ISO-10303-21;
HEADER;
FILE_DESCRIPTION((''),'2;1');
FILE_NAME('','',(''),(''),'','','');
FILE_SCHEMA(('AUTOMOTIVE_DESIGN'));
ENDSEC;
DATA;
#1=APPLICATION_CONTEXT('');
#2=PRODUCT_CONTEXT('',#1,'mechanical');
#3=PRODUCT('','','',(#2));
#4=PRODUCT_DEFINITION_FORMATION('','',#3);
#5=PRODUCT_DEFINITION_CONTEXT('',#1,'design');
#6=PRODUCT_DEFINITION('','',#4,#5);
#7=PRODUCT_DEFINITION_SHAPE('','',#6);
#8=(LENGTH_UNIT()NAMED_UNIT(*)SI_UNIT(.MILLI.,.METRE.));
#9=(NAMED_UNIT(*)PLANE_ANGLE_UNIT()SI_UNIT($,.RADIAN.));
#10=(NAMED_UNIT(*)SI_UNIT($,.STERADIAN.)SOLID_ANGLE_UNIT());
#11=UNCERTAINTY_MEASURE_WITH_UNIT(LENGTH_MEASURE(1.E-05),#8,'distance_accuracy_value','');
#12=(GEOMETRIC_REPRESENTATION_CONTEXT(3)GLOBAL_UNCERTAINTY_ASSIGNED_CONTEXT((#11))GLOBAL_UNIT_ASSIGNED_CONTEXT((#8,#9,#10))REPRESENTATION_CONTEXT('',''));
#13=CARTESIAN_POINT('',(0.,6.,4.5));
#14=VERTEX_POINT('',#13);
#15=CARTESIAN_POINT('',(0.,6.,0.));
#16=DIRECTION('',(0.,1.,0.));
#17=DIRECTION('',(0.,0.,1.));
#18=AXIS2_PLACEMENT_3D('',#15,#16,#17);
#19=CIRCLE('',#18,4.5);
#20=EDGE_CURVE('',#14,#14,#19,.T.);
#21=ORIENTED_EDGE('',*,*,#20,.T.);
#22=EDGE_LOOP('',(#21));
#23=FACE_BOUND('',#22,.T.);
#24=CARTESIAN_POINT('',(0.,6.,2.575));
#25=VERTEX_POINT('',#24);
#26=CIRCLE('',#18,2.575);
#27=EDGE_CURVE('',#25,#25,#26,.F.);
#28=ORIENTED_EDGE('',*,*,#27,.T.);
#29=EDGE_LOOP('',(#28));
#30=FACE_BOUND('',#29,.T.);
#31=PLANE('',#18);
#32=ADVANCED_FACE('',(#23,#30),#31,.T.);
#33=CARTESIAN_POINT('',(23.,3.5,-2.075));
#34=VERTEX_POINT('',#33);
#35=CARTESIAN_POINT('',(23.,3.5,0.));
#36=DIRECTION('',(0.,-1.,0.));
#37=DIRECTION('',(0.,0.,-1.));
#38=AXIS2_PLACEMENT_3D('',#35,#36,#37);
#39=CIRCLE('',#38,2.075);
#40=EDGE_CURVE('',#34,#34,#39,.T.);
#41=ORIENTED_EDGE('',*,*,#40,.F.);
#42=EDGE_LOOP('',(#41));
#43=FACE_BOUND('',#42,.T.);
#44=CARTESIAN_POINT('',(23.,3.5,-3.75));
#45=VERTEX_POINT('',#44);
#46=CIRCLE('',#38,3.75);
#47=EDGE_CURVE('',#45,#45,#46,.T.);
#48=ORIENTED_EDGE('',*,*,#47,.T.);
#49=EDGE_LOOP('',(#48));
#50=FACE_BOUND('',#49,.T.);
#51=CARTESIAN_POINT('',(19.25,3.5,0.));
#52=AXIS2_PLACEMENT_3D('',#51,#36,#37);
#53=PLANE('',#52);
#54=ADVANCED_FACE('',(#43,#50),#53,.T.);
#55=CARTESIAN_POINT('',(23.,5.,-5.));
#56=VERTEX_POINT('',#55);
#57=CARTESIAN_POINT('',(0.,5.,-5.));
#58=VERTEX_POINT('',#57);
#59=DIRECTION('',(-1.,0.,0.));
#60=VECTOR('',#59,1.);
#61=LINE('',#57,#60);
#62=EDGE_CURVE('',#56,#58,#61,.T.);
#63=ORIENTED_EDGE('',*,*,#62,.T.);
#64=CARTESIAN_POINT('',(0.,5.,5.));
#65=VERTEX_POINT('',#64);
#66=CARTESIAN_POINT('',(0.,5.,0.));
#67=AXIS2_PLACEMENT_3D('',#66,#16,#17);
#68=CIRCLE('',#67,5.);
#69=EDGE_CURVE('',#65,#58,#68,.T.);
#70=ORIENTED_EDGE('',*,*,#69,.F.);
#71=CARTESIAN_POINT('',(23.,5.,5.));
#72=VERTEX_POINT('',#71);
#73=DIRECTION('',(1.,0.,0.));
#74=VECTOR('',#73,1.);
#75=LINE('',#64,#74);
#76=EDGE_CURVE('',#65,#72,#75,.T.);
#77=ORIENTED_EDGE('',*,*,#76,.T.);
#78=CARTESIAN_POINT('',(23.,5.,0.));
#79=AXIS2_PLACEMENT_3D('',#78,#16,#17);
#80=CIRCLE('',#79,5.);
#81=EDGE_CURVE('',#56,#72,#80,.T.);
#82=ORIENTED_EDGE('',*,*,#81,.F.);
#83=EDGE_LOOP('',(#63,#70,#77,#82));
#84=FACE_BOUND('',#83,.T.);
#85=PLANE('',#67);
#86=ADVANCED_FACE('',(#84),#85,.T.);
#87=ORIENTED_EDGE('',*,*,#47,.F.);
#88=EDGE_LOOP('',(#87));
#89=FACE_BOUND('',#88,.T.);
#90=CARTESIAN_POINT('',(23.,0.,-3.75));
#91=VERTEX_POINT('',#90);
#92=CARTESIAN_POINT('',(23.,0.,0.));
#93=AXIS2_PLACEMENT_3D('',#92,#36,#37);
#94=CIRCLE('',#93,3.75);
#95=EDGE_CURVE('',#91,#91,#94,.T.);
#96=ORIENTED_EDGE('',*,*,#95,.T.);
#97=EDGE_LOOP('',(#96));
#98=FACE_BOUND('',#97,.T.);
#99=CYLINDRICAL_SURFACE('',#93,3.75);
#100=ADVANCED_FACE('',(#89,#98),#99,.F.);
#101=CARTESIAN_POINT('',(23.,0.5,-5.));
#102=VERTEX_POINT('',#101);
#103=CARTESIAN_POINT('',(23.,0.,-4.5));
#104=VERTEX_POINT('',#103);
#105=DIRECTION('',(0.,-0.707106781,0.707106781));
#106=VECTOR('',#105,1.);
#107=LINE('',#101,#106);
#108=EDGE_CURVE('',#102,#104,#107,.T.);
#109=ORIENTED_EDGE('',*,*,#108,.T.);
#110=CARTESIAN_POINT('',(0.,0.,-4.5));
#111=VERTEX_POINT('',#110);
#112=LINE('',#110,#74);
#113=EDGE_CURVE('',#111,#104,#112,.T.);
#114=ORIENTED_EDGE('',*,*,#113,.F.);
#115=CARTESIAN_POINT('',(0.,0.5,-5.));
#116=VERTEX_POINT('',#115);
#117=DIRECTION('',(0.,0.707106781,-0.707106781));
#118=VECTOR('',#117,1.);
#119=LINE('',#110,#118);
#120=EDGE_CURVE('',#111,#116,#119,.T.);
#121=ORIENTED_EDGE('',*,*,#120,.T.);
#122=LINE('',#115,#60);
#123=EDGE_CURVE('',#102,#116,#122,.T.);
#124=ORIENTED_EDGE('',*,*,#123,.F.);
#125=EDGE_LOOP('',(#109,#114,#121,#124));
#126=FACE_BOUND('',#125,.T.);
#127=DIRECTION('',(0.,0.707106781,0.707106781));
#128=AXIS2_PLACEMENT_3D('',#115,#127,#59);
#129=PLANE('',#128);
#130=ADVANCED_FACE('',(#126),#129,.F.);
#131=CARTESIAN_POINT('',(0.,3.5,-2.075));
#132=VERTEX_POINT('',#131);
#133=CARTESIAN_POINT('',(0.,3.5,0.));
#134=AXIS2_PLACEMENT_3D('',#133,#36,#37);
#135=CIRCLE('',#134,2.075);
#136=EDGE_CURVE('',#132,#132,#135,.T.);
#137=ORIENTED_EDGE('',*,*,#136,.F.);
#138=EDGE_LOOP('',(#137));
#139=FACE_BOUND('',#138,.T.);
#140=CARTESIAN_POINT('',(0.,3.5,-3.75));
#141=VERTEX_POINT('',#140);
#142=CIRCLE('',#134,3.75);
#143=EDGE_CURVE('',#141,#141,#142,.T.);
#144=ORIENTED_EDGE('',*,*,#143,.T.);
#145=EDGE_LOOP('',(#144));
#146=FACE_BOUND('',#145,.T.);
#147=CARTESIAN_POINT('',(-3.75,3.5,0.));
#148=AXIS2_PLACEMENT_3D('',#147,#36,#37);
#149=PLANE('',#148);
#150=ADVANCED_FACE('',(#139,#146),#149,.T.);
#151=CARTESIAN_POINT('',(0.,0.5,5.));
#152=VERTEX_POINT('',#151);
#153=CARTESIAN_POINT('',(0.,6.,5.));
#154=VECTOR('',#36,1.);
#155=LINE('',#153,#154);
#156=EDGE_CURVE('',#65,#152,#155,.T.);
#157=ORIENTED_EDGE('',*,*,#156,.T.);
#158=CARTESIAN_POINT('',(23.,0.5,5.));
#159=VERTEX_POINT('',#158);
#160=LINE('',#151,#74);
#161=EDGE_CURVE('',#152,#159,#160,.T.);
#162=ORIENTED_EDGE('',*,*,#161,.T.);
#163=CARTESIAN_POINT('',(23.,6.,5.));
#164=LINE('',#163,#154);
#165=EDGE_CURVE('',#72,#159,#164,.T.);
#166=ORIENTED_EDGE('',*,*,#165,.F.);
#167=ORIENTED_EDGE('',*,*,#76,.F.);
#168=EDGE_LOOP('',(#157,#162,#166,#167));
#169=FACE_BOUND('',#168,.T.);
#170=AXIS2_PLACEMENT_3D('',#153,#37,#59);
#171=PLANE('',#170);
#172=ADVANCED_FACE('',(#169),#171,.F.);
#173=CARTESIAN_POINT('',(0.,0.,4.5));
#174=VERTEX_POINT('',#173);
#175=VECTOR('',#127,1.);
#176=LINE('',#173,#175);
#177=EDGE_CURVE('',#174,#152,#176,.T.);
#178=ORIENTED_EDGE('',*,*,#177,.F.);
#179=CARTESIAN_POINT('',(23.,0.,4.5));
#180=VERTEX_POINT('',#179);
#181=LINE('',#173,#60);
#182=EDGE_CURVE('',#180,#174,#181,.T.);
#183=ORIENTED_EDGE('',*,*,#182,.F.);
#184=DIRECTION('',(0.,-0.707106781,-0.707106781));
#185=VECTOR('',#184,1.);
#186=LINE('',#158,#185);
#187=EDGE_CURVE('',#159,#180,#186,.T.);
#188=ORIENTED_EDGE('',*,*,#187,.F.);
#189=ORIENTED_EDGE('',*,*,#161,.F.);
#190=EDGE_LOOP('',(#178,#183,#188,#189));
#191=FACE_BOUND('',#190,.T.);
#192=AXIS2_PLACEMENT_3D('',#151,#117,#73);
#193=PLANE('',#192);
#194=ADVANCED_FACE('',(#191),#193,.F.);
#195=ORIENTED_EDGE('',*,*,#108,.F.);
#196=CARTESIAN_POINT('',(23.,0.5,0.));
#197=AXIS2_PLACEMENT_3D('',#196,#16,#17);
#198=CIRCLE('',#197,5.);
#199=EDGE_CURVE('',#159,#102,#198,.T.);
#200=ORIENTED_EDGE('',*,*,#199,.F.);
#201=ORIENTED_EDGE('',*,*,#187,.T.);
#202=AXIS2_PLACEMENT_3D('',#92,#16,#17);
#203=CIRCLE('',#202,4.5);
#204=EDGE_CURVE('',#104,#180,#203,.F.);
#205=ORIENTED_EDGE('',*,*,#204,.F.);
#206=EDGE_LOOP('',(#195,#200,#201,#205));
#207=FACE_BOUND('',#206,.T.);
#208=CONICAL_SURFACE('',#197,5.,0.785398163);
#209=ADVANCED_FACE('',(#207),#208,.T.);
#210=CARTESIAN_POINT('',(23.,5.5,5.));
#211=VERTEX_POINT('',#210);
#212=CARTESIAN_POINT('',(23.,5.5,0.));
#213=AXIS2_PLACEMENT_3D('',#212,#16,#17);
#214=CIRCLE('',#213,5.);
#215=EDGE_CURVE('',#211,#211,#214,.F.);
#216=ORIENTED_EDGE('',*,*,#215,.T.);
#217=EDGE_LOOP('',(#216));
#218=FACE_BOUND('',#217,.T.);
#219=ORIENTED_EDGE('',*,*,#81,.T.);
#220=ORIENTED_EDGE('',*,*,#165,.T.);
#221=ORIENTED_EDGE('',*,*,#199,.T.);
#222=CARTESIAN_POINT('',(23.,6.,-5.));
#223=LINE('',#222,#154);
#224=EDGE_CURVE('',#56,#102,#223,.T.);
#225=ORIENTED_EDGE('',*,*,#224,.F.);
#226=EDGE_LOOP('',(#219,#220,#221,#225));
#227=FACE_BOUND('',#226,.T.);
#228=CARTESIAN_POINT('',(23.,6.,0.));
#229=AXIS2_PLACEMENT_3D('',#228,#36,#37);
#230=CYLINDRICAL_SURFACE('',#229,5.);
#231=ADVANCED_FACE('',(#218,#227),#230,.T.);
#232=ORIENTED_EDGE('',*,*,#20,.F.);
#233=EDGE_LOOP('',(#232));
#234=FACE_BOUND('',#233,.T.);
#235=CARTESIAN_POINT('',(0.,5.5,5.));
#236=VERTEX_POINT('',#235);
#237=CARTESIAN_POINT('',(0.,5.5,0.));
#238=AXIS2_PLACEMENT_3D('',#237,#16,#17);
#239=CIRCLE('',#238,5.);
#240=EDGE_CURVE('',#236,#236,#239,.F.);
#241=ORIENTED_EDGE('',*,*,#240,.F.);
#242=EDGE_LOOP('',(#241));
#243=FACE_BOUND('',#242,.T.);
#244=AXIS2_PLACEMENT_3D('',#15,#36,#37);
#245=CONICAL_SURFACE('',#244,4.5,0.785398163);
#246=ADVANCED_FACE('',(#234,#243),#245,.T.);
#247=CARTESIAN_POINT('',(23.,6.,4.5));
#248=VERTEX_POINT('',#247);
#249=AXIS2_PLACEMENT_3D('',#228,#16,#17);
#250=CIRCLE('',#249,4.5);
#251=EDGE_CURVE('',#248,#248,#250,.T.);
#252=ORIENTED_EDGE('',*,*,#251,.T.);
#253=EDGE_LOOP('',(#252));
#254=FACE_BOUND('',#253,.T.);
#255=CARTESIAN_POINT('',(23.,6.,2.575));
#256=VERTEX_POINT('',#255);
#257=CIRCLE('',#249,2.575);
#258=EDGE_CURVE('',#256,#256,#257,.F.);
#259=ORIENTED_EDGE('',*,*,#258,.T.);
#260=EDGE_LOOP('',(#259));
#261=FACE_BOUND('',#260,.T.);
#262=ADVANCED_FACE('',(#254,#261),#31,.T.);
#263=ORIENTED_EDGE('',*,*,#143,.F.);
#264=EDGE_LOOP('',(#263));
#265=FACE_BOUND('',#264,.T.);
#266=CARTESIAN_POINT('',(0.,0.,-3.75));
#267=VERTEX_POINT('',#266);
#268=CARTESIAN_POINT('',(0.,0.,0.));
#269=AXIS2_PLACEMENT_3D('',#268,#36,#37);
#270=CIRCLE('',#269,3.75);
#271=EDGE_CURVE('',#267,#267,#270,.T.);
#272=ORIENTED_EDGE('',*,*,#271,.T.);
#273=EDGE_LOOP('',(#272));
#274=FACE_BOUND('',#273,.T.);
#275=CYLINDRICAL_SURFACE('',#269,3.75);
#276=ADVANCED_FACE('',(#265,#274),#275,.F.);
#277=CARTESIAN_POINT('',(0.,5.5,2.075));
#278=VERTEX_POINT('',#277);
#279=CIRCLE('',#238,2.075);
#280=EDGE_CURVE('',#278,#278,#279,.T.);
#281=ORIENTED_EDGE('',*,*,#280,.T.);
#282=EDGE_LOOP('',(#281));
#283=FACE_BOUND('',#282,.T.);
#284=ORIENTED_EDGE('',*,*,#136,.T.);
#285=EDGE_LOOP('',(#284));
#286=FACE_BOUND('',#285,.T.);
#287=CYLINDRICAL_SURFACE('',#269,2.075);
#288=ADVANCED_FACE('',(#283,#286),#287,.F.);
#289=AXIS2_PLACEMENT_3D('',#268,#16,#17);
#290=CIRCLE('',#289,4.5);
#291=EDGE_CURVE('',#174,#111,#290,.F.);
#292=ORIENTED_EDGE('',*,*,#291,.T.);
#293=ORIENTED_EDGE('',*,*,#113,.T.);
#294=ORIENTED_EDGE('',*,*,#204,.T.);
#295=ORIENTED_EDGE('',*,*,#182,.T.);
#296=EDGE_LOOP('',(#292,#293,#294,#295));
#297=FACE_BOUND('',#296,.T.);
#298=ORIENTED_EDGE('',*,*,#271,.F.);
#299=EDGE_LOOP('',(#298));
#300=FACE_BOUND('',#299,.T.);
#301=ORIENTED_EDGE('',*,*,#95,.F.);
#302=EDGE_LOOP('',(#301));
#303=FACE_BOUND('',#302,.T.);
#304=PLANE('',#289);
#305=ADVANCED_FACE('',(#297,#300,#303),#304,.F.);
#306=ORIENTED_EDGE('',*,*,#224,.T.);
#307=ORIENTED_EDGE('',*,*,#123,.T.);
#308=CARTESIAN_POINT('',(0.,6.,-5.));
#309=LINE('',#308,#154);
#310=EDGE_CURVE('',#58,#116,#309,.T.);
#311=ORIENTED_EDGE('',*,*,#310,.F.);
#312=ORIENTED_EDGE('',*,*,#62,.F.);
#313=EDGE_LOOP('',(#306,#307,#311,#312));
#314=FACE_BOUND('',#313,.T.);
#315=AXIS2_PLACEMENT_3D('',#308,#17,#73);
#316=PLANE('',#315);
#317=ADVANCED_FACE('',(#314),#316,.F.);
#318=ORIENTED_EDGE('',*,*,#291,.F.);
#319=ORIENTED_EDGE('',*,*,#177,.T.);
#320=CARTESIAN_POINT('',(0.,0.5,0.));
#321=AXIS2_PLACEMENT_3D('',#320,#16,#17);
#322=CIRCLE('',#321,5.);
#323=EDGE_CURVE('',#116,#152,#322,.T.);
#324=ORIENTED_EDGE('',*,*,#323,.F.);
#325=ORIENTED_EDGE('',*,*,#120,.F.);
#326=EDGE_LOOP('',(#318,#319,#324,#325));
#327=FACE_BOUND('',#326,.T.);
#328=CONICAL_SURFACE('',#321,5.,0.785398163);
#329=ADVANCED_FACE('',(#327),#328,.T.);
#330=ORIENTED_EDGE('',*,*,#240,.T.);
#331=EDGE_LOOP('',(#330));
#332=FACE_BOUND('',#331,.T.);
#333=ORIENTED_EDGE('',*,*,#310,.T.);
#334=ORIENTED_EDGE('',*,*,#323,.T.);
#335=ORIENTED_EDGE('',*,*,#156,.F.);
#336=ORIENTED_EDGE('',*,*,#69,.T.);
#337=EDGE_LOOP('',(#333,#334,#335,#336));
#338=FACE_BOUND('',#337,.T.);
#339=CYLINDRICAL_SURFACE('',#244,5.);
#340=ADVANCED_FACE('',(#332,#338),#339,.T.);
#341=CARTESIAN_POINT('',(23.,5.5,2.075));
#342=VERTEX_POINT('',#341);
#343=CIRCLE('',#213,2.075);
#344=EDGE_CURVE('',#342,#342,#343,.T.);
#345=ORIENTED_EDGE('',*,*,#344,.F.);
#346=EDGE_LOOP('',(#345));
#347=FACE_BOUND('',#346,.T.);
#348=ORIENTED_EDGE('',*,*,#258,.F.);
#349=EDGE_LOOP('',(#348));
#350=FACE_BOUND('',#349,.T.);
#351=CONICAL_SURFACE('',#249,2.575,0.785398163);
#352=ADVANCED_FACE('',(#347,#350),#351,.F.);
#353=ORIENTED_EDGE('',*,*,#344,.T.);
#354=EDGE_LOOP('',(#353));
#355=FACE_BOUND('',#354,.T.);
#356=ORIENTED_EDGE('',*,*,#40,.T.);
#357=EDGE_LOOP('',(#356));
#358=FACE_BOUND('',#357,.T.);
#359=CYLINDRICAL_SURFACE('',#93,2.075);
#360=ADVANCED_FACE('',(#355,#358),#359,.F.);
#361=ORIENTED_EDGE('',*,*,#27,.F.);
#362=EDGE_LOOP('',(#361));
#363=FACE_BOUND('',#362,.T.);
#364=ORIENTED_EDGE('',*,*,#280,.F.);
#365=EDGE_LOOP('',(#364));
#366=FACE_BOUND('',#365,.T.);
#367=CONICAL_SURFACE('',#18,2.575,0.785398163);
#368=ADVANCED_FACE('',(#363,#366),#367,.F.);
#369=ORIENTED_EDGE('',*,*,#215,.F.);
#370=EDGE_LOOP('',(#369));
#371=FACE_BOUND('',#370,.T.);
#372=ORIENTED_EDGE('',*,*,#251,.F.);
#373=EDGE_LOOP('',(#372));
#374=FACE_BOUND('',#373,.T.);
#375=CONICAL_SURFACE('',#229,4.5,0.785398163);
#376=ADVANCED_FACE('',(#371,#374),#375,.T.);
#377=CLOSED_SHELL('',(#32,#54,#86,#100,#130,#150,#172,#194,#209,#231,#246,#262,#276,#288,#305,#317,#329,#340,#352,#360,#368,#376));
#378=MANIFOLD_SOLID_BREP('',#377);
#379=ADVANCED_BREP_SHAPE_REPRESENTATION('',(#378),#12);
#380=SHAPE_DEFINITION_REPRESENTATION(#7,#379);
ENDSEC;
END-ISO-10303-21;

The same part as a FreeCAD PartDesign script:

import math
import FreeCAD as App
import Part
import Sketcher
from FreeCAD import Vector


def edges_at(feature, points):
    """Names of the edges that pass closest to the given points."""
    edges = feature.Shape.Edges
    near = lambda p: min(range(len(edges)), key=lambda i: edges[i].distToShape(Part.Vertex(*p))[0])
    return sorted({f"Edge{near(p) + 1}" for p in points})


def add_polygon(sketch, points):
    """Adds a closed chain of lines whose ends are joined by coincident constraints."""
    first, n = sketch.GeometryCount, len(points)
    for a, b in zip(points, points[1:] + points[:1]):
        sketch.addGeometry(Part.LineSegment(App.Vector(*a, 0), App.Vector(*b, 0)), False)
    for i in range(n):
        sketch.addConstraint(Sketcher.Constraint("Coincident", first + i, 2, first + (i + 1) % n, 1))

doc = App.newDocument("Part")
params = doc.addObject("Spreadsheet::Sheet", "Params")
for row, (alias, value) in enumerate([
    ("sketch1_radius", "5 mm"),
    ("sketch1_width", "23 mm"),
    ("pad1_length", "6 mm"),
    ("sketch2_height", "6 mm"),
    ("sketch2_height2", "2.5 mm"),
    ("sketch2_width", "3.75 mm"),
    ("groove_angle", "360 deg"),
    ("sketch3_height", "6 mm"),
    ("sketch3_height2", "2.5 mm"),
    ("sketch3_width", "3.75 mm"),
    ("groove2_angle", "360 deg"),
    ("sketch4_diameter", "10 mm"),
    ("pocket1_length", "1 mm"),
    ("chamfer_size", "0.5 mm"),
], start=1):
    params.set(f"A{row}", alias)
    params.set(f"B{row}", "=" + value)
    params.setAlias(f"B{row}", alias)

body = doc.addObject("PartDesign::Body", "Body")

sketch1 = doc.addObject("Sketcher::SketchObject", "Sketch")
body.addObject(sketch1)
sketch1.AttachmentSupport = (doc.XZ_Plane, [""])
sketch1.MapMode = "FlatFace"
sketch1.addGeometry(Part.LineSegment(Vector(23, -5, 0), Vector(0, -5, 0)), False)
sketch1.addGeometry(Part.ArcOfCircle(Part.Circle(Vector(0, 0, 0), Vector(0, 0, 1), 5), math.radians(90), math.radians(270)), False)
sketch1.addGeometry(Part.LineSegment(Vector(0, 5, 0), Vector(23, 5, 0)), False)
sketch1.addGeometry(Part.ArcOfCircle(Part.Circle(Vector(23, 0, 0), Vector(0, 0, 1), 5), math.radians(-90), math.radians(90)), False)
sketch1.addConstraint(Sketcher.Constraint("Tangent", 0, 2, 1, 2))
sketch1.addConstraint(Sketcher.Constraint("Tangent", 1, 1, 2, 1))
sketch1.addConstraint(Sketcher.Constraint("Tangent", 2, 2, 3, 2))
sketch1.addConstraint(Sketcher.Constraint("Tangent", 3, 1, 0, 1))
sketch1.addConstraint(Sketcher.Constraint("Horizontal", 0))
sketch1.addConstraint(Sketcher.Constraint("Horizontal", 2))
sketch1.addConstraint(Sketcher.Constraint("Coincident", 1, 3, -1, 1))
sketch1.addConstraint(Sketcher.Constraint("Radius", 1, 5.0))
sketch1.addConstraint(Sketcher.Constraint("DistanceX", 0, 2, 0, 1, 23.0))
sketch1.setExpression("Constraints[7]", "Params.sketch1_radius")
sketch1.setExpression("Constraints[8]", "Params.sketch1_width")
pad1 = doc.addObject("PartDesign::Pad", "Pad")
body.addObject(pad1)
pad1.Profile = sketch1
pad1.setExpression("Length", "Params.pad1_length")
pad1.Reversed = True

sketch2 = doc.addObject("Sketcher::SketchObject", "Sketch001")
body.addObject(sketch2)
sketch2.AttachmentSupport = (doc.XY_Plane, [""])
sketch2.MapMode = "FlatFace"
add_polygon(sketch2, [(-3.8, 0), (0, 0), (0, 6), (-2.1, 6), (-2.1, 3.5), (-3.8, 3.5)])
sketch2.addConstraint(Sketcher.Constraint("Horizontal", 0))
sketch2.addConstraint(Sketcher.Constraint("Vertical", 1))
sketch2.addConstraint(Sketcher.Constraint("Horizontal", 2))
sketch2.addConstraint(Sketcher.Constraint("Vertical", 3))
sketch2.addConstraint(Sketcher.Constraint("Horizontal", 4))
sketch2.addConstraint(Sketcher.Constraint("Vertical", 5))
sketch2.addConstraint(Sketcher.Constraint("Coincident", 0, 2, -1, 1))
sketch2.addConstraint(Sketcher.Constraint("DistanceY", 1, 1, 1, 2, 6.0))
sketch2.addConstraint(Sketcher.Constraint("DistanceY", 3, 2, 3, 1, 2.5))
sketch2.addConstraint(Sketcher.Constraint("DistanceX", 0, 1, 0, 2, 3.75))
sketch2.addConstraint(Sketcher.Constraint("DistanceX", 2, 2, 2, 1, 2.075))
sketch2.setExpression("Constraints[13]", "Params.sketch2_height")
sketch2.setExpression("Constraints[14]", "Params.sketch2_height2")
sketch2.setExpression("Constraints[15]", "Params.sketch2_width")
groove = doc.addObject("PartDesign::Groove", "Groove")
body.addObject(groove)
groove.Profile = sketch2
groove.ReferenceAxis = (sketch2, ["V_Axis"])
groove.setExpression("Angle", "Params.groove_angle")

sketch3 = doc.addObject("Sketcher::SketchObject", "Sketch002")
body.addObject(sketch3)
sketch3.AttachmentSupport = (doc.XY_Plane, [""])
sketch3.MapMode = "FlatFace"
add_polygon(sketch3, [(19.2, 0), (23, 0), (23, 6), (20.9, 6), (20.9, 3.5), (19.2, 3.5)])
sketch3.addGeometry(Part.LineSegment(Vector(23, 0, 0), Vector(23, 6, 0)), True)
sketch3.addConstraint(Sketcher.Constraint("Horizontal", 0))
sketch3.addConstraint(Sketcher.Constraint("Vertical", 1))
sketch3.addConstraint(Sketcher.Constraint("Horizontal", 2))
sketch3.addConstraint(Sketcher.Constraint("Vertical", 3))
sketch3.addConstraint(Sketcher.Constraint("Horizontal", 4))
sketch3.addConstraint(Sketcher.Constraint("Vertical", 5))
sketch3.addConstraint(Sketcher.Constraint("Vertical", 6))
sketch3.addConstraint(Sketcher.Constraint("Coincident", 6, 1, 0, 2))
sketch3.addConstraint(Sketcher.Constraint("PointOnObject", 0, 2, -1))
sketch3.addConstraint(Sketcher.Constraint("Horizontal", 2, 2, 6, 2))
sketch3.addConstraint(Sketcher.Constraint("DistanceY", 1, 1, 1, 2, 6.0))
sketch3.addConstraint(Sketcher.Constraint("DistanceY", 3, 2, 3, 1, 2.5))
sketch3.addConstraint(Sketcher.Constraint("DistanceX", -1, 1, 0, 2, 23.0))
sketch3.addConstraint(Sketcher.Constraint("DistanceX", 0, 1, 0, 2, 3.75))
sketch3.addConstraint(Sketcher.Constraint("DistanceX", 2, 2, 2, 1, 2.075))
sketch3.setExpression("Constraints[16]", "Params.sketch3_height")
sketch3.setExpression("Constraints[17]", "Params.sketch3_height2")
sketch3.setExpression("Constraints[19]", "Params.sketch3_width")
groove2 = doc.addObject("PartDesign::Groove", "Groove001")
body.addObject(groove2)
groove2.Profile = sketch3
groove2.ReferenceAxis = (sketch3, ["Axis0"])
groove2.setExpression("Angle", "Params.groove2_angle")

sketch4 = doc.addObject("Sketcher::SketchObject", "Sketch003")
body.addObject(sketch4)
sketch4.AttachmentSupport = (doc.XZ_Plane, [""])
sketch4.MapMode = "FlatFace"
sketch4.AttachmentOffset = App.Placement(Vector(0, 0, -6), App.Rotation())
add_polygon(sketch4, [(-15, -11), (-15, 11), (36, 11), (36, -11)])
sketch4.addGeometry(Part.Circle(Vector(0, 0, 0), Vector(0, 0, 1), 5), False)
sketch4.addGeometry(Part.Circle(Vector(23, 0, 0), Vector(0, 0, 1), 5), False)
sketch4.addConstraint(Sketcher.Constraint("Vertical", 0))
sketch4.addConstraint(Sketcher.Constraint("Horizontal", 1))
sketch4.addConstraint(Sketcher.Constraint("Vertical", 2))
sketch4.addConstraint(Sketcher.Constraint("Horizontal", 3))
sketch4.addConstraint(Sketcher.Constraint("Coincident", 4, 3, -1, 1))
sketch4.addConstraint(Sketcher.Constraint("Equal", 4, 5))
sketch4.addConstraint(Sketcher.Constraint("PointOnObject", 5, 3, -1))
sketch4.addConstraint(Sketcher.Constraint("Diameter", 4, 10.0))
sketch4.addConstraint(Sketcher.Constraint("DistanceX", -1, 1, 5, 3, 23.0))
sketch4.addConstraint(Sketcher.Constraint("DistanceY", 2, 2, -1, 1, 11.122002))
sketch4.addConstraint(Sketcher.Constraint("DistanceY", 0, 1, 0, 2, 22.08502))
sketch4.addConstraint(Sketcher.Constraint("DistanceX", 1, 1, 1, 2, 50.780974))
sketch4.addConstraint(Sketcher.Constraint("DistanceX", 0, 2, -1, 1, 15.075657))
sketch4.setExpression("Constraints[11]", "Params.sketch4_diameter")
pocket1 = doc.addObject("PartDesign::Pocket", "Pocket")
body.addObject(pocket1)
pocket1.Profile = sketch4
pocket1.setExpression("Length", "Params.pocket1_length")
pocket1.Reversed = True
doc.recompute()

chamfer = doc.addObject("PartDesign::Chamfer", "Chamfer")
body.addObject(chamfer)
chamfer.Base = (pocket1, edges_at(pocket1, [
    (23, 6, 5),
    (2.075, 6, 0),
    (25.075, 6, 0),
    (-5, 6, 0),
    (11.5, 0, -5),
    (28, 0, 0),
    (11.5, 0, 5),
    (-5, 0, 0),
]))
chamfer.setExpression("Size", "Params.chamfer_size")

doc.recompute()
